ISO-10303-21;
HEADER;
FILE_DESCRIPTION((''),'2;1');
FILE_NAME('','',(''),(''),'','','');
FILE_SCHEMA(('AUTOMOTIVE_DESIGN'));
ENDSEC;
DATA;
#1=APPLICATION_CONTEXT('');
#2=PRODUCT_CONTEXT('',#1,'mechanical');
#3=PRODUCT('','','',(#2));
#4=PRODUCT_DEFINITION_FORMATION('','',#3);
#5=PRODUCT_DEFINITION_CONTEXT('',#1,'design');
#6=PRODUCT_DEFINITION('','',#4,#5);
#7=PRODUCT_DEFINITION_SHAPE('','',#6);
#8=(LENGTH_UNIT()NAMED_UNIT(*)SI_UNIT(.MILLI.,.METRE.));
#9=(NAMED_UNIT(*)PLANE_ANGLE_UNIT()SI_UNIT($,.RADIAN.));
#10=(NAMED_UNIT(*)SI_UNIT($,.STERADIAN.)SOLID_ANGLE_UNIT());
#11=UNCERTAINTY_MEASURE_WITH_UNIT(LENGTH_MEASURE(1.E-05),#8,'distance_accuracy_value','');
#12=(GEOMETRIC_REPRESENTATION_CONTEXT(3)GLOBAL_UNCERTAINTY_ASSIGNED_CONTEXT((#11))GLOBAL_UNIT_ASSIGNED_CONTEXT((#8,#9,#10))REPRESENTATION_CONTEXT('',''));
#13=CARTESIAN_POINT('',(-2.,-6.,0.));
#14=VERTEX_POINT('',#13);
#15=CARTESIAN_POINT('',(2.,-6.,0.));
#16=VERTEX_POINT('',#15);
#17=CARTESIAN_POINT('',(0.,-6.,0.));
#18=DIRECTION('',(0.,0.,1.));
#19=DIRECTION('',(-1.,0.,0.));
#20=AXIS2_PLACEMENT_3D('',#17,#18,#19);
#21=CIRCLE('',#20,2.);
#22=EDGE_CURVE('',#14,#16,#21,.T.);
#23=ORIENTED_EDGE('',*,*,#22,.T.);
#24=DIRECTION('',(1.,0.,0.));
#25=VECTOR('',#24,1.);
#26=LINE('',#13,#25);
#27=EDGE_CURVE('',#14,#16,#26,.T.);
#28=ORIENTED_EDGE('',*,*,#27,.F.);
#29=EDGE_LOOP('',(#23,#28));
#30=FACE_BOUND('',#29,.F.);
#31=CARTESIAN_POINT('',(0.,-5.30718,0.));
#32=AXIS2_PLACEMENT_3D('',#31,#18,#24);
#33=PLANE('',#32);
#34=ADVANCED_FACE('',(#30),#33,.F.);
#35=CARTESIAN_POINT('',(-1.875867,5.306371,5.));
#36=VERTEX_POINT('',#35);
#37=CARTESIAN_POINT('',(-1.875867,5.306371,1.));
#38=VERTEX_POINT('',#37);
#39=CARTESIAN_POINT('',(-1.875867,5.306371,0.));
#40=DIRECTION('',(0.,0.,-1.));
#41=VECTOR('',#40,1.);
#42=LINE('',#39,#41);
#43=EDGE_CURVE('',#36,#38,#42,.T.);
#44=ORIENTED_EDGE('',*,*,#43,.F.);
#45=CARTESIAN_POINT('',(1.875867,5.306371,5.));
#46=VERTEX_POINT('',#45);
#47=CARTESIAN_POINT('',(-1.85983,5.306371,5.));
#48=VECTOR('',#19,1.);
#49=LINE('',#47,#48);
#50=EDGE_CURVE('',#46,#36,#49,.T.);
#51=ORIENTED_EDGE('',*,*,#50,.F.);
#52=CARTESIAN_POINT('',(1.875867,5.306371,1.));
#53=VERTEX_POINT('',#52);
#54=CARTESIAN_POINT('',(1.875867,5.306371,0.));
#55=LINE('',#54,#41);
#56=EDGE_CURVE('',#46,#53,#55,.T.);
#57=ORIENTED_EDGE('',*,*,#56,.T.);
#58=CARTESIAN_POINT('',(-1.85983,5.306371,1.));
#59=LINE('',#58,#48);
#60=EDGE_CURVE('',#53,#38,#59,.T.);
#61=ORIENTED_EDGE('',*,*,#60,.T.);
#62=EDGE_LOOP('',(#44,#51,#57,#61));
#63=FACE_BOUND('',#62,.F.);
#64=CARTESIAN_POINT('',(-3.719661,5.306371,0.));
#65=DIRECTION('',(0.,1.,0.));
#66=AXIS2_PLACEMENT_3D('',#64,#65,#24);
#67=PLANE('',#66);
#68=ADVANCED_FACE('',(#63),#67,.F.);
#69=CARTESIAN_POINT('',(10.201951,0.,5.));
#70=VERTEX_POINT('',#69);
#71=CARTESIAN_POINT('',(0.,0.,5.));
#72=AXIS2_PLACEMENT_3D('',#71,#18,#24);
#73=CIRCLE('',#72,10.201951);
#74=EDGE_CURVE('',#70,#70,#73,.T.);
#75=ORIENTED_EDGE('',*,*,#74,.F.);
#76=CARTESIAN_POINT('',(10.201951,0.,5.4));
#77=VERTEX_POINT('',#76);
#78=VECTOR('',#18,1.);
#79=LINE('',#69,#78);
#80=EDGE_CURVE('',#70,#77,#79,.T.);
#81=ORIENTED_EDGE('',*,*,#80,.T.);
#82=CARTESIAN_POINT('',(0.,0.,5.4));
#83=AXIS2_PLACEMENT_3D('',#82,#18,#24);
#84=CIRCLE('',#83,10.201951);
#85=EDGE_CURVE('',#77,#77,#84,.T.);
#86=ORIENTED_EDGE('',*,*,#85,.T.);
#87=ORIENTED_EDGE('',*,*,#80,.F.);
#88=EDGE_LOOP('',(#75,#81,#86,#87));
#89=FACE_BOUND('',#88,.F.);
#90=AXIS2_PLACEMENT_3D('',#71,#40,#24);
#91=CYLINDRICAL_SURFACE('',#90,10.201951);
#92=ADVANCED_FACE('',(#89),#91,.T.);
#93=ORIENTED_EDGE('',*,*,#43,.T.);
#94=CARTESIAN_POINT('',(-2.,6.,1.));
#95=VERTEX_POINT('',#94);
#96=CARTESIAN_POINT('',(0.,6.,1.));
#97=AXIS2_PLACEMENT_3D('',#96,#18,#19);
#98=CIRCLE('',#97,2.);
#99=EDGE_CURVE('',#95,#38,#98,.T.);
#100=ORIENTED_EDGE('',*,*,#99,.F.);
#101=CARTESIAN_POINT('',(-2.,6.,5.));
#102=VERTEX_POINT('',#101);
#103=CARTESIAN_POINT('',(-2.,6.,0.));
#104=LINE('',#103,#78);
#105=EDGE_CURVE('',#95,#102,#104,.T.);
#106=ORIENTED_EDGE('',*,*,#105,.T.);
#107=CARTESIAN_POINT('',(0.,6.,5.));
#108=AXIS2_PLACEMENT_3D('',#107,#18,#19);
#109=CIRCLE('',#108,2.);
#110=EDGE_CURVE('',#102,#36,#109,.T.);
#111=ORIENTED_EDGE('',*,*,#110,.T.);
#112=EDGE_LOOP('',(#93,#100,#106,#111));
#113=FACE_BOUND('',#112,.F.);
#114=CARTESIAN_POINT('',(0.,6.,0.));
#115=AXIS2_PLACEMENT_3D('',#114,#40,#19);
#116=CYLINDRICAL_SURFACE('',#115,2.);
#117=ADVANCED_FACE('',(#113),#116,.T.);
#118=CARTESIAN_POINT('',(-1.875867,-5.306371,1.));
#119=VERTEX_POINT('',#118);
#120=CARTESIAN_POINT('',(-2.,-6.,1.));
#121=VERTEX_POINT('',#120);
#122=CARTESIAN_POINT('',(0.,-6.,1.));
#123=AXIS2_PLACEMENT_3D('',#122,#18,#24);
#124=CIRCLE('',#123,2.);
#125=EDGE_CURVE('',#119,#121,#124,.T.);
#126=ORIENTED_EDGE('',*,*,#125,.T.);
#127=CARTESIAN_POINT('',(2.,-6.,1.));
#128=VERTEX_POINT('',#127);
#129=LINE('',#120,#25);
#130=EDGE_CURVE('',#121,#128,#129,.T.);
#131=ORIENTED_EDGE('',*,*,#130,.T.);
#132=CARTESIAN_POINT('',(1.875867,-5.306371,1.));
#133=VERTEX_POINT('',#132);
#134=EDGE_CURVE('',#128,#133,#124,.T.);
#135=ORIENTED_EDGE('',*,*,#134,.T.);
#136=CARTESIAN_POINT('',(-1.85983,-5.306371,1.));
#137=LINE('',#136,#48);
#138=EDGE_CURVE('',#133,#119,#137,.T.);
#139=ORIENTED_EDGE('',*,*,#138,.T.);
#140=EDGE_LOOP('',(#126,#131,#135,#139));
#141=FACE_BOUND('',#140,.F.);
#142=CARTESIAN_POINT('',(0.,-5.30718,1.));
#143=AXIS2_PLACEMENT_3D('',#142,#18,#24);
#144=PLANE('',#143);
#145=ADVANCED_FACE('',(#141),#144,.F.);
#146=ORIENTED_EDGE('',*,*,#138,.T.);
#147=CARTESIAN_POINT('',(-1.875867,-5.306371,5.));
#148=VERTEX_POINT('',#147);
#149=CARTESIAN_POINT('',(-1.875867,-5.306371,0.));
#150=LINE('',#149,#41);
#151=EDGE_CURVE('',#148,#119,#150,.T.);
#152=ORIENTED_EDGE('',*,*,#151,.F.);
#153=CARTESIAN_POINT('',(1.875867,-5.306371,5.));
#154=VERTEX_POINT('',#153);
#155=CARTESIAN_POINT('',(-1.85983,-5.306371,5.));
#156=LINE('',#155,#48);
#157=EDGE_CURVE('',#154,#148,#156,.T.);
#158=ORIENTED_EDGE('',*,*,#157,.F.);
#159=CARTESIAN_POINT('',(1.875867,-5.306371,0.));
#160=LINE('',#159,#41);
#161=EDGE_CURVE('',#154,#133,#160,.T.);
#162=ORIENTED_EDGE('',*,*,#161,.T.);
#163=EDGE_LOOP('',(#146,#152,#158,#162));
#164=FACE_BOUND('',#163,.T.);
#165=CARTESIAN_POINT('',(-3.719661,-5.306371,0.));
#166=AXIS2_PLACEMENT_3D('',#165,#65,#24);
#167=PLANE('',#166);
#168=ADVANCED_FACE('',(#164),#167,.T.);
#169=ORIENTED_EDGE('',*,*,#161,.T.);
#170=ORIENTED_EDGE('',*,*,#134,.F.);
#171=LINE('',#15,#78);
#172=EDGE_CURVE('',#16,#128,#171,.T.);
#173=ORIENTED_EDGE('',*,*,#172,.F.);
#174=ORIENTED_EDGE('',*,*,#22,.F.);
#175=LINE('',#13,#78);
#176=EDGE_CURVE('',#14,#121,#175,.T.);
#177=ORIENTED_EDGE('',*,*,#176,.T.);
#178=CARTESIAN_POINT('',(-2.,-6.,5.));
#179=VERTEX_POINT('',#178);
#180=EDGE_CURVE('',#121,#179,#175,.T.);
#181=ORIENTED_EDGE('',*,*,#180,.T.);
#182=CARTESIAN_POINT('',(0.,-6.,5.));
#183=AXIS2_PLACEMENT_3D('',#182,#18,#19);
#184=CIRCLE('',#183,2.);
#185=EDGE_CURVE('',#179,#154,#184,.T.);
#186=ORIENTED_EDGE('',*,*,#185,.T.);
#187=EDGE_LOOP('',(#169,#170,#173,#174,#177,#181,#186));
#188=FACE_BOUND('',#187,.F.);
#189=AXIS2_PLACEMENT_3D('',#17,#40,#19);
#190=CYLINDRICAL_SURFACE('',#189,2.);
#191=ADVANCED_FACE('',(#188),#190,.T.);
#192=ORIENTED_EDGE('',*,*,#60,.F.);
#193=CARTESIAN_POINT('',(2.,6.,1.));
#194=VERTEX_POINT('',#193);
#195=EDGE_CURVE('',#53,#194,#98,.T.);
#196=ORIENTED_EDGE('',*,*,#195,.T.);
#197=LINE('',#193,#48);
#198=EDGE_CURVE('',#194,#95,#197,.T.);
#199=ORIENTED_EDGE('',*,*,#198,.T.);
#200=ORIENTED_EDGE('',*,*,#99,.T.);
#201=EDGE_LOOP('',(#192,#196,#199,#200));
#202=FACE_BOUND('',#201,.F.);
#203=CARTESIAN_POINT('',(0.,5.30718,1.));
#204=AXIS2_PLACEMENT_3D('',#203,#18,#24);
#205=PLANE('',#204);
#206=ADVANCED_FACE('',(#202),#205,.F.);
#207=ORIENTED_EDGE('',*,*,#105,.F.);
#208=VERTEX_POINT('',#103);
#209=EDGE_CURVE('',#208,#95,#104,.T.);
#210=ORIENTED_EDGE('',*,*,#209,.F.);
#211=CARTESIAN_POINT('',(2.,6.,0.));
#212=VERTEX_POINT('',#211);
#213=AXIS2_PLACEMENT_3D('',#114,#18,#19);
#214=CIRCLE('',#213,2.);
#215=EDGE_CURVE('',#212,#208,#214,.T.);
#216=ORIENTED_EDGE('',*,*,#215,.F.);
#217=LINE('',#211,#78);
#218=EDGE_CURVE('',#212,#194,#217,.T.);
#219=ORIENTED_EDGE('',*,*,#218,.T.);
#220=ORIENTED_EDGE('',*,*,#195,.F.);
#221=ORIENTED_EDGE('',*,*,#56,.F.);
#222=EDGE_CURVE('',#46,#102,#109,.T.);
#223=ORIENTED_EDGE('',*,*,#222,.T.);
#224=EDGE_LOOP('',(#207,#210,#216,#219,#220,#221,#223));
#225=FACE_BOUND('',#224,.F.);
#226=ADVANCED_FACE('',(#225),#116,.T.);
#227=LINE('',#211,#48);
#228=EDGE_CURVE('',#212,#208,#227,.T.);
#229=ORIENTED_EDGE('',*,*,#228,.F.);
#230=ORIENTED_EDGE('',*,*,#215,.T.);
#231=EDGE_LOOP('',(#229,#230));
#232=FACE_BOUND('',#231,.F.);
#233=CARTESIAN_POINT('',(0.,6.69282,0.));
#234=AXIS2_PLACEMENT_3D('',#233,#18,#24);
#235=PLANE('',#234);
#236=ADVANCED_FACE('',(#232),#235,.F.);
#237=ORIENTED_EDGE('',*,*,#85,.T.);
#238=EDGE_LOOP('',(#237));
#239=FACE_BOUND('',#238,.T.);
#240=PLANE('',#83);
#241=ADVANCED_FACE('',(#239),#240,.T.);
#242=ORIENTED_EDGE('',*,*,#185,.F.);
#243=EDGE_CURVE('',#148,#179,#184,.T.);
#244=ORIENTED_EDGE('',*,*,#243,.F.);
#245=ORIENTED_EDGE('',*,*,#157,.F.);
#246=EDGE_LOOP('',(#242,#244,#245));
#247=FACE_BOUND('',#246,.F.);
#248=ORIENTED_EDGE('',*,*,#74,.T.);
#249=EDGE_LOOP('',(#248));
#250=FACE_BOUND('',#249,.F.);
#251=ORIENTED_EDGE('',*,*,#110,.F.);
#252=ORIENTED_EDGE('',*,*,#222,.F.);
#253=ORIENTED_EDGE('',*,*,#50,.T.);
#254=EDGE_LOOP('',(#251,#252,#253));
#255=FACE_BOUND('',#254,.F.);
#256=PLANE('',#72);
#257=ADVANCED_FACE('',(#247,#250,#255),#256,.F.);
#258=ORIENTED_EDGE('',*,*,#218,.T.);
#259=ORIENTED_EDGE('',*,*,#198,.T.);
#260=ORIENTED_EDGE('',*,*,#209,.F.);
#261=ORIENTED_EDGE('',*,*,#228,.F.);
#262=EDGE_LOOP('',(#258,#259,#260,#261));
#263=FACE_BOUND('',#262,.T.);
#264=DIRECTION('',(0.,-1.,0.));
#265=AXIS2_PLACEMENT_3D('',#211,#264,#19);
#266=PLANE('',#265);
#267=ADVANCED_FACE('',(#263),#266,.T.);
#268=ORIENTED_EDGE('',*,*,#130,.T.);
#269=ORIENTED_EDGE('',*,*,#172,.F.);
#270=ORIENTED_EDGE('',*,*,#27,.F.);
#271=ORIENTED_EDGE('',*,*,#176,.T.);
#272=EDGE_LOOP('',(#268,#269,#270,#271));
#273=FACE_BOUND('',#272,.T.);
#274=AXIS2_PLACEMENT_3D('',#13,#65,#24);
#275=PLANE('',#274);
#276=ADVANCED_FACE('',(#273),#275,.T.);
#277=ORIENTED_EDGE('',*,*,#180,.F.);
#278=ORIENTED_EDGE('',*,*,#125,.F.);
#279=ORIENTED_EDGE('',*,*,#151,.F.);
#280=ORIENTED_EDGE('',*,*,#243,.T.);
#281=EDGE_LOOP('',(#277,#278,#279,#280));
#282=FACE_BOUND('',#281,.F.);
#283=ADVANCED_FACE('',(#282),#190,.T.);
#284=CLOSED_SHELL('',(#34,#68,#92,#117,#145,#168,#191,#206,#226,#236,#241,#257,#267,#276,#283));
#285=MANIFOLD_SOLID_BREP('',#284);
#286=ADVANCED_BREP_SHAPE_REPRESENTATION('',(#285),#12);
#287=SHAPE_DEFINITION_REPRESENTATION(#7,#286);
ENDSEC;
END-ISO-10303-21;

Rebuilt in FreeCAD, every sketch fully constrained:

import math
import FreeCAD as App
import Part
import Sketcher
Q = App.Units.Quantity

doc = App.newDocument("Part")
params = doc.addObject("Spreadsheet::Sheet", "Params")
for row, (alias, value) in enumerate([
    ("sketch1_diameter", "4 mm"),
    ("pad1_length", "5 mm"),
    ("sketch2_diameter", "4 mm"),
    ("pad2_length", "5 mm"),
    ("sketch3_radius", "2 mm"),
    ("pad3_length", "1 mm"),
    ("pad4_length", "25 mm"),
    ("pad5_length", "0.4 mm"),
], start=1):
    params.set(f"A{row}", alias)
    params.set(f"B{row}", "=" + value)
    params.setAlias(f"B{row}", alias)

body = doc.addObject("PartDesign::Body", "Body")

sketch1 = doc.addObject("Sketcher::SketchObject", "Sketch")
body.addObject(sketch1)
sketch1.AttachmentSupport = (doc.XY_Plane, [""])
sketch1.MapMode = "FlatFace"
sketch1.addGeometry(Part.Circle(App.Vector(0, 6, 0), App.Vector(0, 0, 1), 2), False)
sketch1.addConstraint(Sketcher.Constraint("PointOnObject", 0, 3, -2))
sketch1.addConstraint(Sketcher.Constraint("Diameter", 0, Q("4 mm")))
sketch1.addConstraint(Sketcher.Constraint("DistanceY", -1, 1, 0, 3, Q("6 mm")))
sketch1.setExpression("Constraints[1]", "Params.sketch1_diameter")
pad1 = doc.addObject("PartDesign::Pad", "Pad")
body.addObject(pad1)
pad1.Profile = sketch1
pad1.setExpression("Length", "Params.pad1_length")
body2 = doc.addObject("PartDesign::Body", "Body001")

sketch2 = doc.addObject("Sketcher::SketchObject", "Sketch001")
body2.addObject(sketch2)
sketch2.AttachmentSupport = (doc.getObject("XY_Plane001"), [""])
sketch2.MapMode = "FlatFace"
sketch2.addGeometry(Part.Circle(App.Vector(0, -6, 0), App.Vector(0, 0, 1), 2), False)
sketch2.addConstraint(Sketcher.Constraint("PointOnObject", 0, 3, -2))
sketch2.addConstraint(Sketcher.Constraint("Diameter", 0, Q("4 mm")))
sketch2.addConstraint(Sketcher.Constraint("DistanceY", 0, 3, -1, 1, Q("6 mm")))
sketch2.setExpression("Constraints[1]", "Params.sketch2_diameter")
pad2 = doc.addObject("PartDesign::Pad", "Pad001")
body2.addObject(pad2)
pad2.Profile = sketch2
pad2.setExpression("Length", "Params.pad2_length")
body3 = doc.addObject("PartDesign::Body", "Body002")
body3.AllowCompound = True

sketch3 = doc.addObject("Sketcher::SketchObject", "Sketch002")
body3.addObject(sketch3)
sketch3.AttachmentSupport = (doc.getObject("XY_Plane002"), [""])
sketch3.MapMode = "FlatFace"
sketch3.addGeometry(Part.ArcOfCircle(Part.Circle(App.Vector(0, 6, 0), App.Vector(0, 0, 1), 2), math.radians(180), math.radians(360)), False)
sketch3.addGeometry(Part.LineSegment(App.Vector(2, 6, 0), App.Vector(-2, 6, 0)), False)
sketch3.addGeometry(Part.LineSegment(App.Vector(-2, -6, 0), App.Vector(2, -6, 0)), False)
sketch3.addGeometry(Part.ArcOfCircle(Part.Circle(App.Vector(0, -6, 0), App.Vector(0, 0, 1), 2), math.radians(0), math.radians(180)), False)
sketch3.addConstraint(Sketcher.Constraint("Coincident", 0, 1, 1, 2))
sketch3.addConstraint(Sketcher.Constraint("Coincident", 1, 1, 0, 2))
sketch3.addConstraint(Sketcher.Constraint("Coincident", 2, 1, 3, 2))
sketch3.addConstraint(Sketcher.Constraint("Coincident", 3, 1, 2, 2))
sketch3.addConstraint(Sketcher.Constraint("Horizontal", 1))
sketch3.addConstraint(Sketcher.Constraint("Horizontal", 2))
sketch3.addConstraint(Sketcher.Constraint("Equal", 0, 3))
sketch3.addConstraint(Sketcher.Constraint("Symmetric", 0, 3, 3, 3, -1, 1))
sketch3.addConstraint(Sketcher.Constraint("Symmetric", 0, 1, 2, 1, -1))
sketch3.addConstraint(Sketcher.Constraint("Horizontal", 3, 3, 2, 1))
sketch3.addConstraint(Sketcher.Constraint("Radius", 0, Q("2 mm")))
sketch3.addConstraint(Sketcher.Constraint("DistanceY", -1, 1, 0, 3, Q("6 mm")))
sketch3.setExpression("Constraints[10]", "Params.sketch3_radius")
pad3 = doc.addObject("PartDesign::Pad", "Pad002")
body3.addObject(pad3)
pad3.Profile = sketch3
pad3.setExpression("Length", "Params.pad3_length")
doc.recompute()

body4 = doc.addObject("PartDesign::Body", "Body003")
body4.BaseFeature = body3
boolean = doc.addObject("PartDesign::Boolean", "Boolean")
body.addObject(boolean)
boolean.Type = "Cut"
boolean.addObjects([body4])
doc.recompute()

boolean2 = doc.addObject("PartDesign::Boolean", "Boolean001")
body2.addObject(boolean2)
boolean2.Type = "Cut"
boolean2.addObjects([body3])
body5 = doc.addObject("PartDesign::Body", "Body004")

sketch4 = doc.addObject("Sketcher::SketchObject", "Sketch003")
body5.addObject(sketch4)
sketch4.AttachmentSupport = (doc.getObject("XY_Plane004"), [""])
sketch4.MapMode = "FlatFace"
sketch4.addGeometry(Part.LineSegment(App.Vector(-4, 5, 0), App.Vector(-4, -5, 0)), False)
sketch4.addGeometry(Part.LineSegment(App.Vector(-4, -5, 0), App.Vector(4, -5, 0)), False)
sketch4.addGeometry(Part.LineSegment(App.Vector(4, -5, 0), App.Vector(4, 5, 0)), False)
sketch4.addGeometry(Part.LineSegment(App.Vector(4, 5, 0), App.Vector(-4, 5, 0)), False)
sketch4.addConstraint(Sketcher.Constraint("Coincident", 0, 2, 1, 1))
sketch4.addConstraint(Sketcher.Constraint("Coincident", 1, 2, 2, 1))
sketch4.addConstraint(Sketcher.Constraint("Coincident", 2, 2, 3, 1))
sketch4.addConstraint(Sketcher.Constraint("Coincident", 3, 2, 0, 1))
sketch4.addConstraint(Sketcher.Constraint("Vertical", 0))
sketch4.addConstraint(Sketcher.Constraint("Horizontal", 1))
sketch4.addConstraint(Sketcher.Constraint("Vertical", 2))
sketch4.addConstraint(Sketcher.Constraint("Horizontal", 3))
sketch4.addConstraint(Sketcher.Constraint("Symmetric", 0, 2, 2, 2, -1, 1))
sketch4.addConstraint(Sketcher.Constraint("DistanceX", 1, 1, 1, 2, Q("7.439321 mm")))
sketch4.addConstraint(Sketcher.Constraint("DistanceY", 0, 2, 0, 1, Q("10.612742 mm")))
pad4 = doc.addObject("PartDesign::Pad", "Pad003")
body5.addObject(pad4)
pad4.Profile = sketch4
pad4.setExpression("Length", "Params.pad4_length")
doc.recompute()

body6 = doc.addObject("PartDesign::Body", "Body005")
body6.BaseFeature = body5
boolean3 = doc.addObject("PartDesign::Boolean", "Boolean002")
body.addObject(boolean3)
boolean3.Type = "Cut"
boolean3.addObjects([body6])
doc.recompute()

boolean4 = doc.addObject("PartDesign::Boolean", "Boolean003")
body2.addObject(boolean4)
boolean4.Type = "Cut"
boolean4.addObjects([body5])
body.AllowCompound = True
doc.recompute()

boolean5 = doc.addObject("PartDesign::Boolean", "Boolean004")
body.addObject(boolean5)
boolean5.Type = "Fuse"
boolean5.addObjects([body2])

sketch5 = doc.addObject("Sketcher::SketchObject", "Sketch004")
body.addObject(sketch5)
sketch5.AttachmentSupport = (doc.XY_Plane, [""])
sketch5.MapMode = "FlatFace"
sketch5.AttachmentOffset = App.Placement(App.Vector(0, 0, 5), App.Rotation())
sketch5.addGeometry(Part.Circle(App.Vector(0, 0, 0), App.Vector(0, 0, 1), 10), False)
sketch5.addConstraint(Sketcher.Constraint("Coincident", 0, 3, -1, 1))
sketch5.addConstraint(Sketcher.Constraint("Diameter", 0, Q("20.403902 mm")))
pad5 = doc.addObject("PartDesign::Pad", "Pad004")
body.addObject(pad5)
pad5.Profile = sketch5
pad5.setExpression("Length", "Params.pad5_length")

doc.recompute()
